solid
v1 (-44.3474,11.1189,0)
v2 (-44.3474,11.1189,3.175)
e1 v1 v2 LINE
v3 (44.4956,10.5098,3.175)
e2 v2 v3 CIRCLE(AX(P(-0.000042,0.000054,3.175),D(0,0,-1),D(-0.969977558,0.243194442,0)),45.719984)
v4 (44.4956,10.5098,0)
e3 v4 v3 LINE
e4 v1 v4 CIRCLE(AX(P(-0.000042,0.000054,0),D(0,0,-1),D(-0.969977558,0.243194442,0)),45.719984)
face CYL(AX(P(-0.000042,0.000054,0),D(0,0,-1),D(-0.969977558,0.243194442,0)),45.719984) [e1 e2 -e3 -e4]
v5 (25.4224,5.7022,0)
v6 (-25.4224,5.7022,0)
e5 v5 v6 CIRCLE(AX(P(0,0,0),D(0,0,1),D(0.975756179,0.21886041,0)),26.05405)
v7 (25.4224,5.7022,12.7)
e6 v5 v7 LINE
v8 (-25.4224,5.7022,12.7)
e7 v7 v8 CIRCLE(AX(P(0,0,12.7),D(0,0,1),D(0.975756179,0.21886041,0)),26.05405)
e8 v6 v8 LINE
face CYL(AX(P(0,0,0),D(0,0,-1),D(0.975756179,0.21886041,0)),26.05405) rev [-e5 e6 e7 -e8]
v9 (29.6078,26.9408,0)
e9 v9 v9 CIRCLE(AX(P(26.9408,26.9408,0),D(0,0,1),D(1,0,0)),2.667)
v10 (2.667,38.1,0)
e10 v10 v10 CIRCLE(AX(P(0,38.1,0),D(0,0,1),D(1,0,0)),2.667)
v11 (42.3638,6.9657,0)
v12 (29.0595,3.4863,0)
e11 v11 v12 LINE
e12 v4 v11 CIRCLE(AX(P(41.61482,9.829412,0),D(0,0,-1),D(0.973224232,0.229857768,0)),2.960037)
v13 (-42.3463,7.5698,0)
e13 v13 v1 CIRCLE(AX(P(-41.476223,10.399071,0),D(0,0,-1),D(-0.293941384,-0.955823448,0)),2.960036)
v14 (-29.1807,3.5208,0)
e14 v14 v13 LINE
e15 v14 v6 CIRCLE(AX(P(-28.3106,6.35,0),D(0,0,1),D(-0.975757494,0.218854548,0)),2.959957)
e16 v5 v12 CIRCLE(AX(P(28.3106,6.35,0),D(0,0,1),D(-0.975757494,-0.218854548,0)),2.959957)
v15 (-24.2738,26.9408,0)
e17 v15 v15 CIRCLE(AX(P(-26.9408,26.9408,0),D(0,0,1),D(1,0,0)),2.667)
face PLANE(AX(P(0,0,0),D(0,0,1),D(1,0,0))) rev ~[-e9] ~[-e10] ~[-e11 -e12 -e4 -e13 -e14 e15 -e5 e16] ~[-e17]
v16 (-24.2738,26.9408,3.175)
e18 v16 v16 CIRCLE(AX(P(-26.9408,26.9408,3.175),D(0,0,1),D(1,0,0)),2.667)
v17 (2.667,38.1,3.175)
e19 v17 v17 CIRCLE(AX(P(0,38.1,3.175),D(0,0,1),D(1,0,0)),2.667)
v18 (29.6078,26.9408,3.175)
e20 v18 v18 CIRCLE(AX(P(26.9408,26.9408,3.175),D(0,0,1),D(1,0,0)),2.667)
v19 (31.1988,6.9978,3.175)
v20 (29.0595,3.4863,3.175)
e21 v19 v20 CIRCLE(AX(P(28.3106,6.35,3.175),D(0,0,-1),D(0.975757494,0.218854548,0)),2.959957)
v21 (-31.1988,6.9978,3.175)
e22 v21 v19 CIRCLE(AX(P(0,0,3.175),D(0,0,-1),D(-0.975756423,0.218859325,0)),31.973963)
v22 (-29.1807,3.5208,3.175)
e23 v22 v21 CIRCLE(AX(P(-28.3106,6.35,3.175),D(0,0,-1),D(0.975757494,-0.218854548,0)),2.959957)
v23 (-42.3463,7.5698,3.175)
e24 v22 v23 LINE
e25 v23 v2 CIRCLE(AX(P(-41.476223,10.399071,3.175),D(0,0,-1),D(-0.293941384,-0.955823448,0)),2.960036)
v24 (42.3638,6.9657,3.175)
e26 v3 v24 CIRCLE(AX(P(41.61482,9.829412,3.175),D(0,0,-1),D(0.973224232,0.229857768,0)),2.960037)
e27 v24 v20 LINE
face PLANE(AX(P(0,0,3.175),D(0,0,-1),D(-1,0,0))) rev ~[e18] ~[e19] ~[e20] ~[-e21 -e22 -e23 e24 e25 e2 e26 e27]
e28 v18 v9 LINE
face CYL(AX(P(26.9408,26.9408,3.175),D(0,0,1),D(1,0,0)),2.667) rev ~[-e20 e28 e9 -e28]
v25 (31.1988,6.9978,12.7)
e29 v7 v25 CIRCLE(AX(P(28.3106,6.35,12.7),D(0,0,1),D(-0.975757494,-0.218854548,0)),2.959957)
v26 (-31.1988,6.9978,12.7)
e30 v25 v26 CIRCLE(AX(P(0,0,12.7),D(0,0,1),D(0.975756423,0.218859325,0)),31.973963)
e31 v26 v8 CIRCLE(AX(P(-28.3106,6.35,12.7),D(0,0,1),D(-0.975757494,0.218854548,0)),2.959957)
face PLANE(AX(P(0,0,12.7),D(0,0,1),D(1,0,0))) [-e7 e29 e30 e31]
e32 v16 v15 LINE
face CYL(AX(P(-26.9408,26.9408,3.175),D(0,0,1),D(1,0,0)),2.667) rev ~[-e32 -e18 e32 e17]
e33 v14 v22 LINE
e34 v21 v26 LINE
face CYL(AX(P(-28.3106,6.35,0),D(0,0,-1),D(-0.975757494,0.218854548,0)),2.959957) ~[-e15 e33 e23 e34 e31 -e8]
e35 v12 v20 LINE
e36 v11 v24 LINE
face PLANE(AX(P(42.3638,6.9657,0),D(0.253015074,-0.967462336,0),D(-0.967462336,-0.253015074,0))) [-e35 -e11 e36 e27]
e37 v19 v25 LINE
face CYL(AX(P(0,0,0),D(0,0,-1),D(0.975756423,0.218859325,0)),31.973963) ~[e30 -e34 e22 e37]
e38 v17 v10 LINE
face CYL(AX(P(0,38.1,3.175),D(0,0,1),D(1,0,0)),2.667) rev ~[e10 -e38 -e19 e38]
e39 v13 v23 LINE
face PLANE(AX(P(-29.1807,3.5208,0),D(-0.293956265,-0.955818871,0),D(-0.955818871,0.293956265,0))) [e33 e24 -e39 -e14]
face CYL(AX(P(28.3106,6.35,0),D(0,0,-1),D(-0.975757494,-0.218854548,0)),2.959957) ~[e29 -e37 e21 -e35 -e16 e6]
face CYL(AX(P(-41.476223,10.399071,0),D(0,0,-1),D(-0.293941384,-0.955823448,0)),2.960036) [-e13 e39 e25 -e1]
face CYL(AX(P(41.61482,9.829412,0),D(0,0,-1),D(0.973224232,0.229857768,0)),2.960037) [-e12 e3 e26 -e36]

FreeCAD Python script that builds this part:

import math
import FreeCAD as App
import Part
import Sketcher
from FreeCAD import Vector
Q = App.Units.Quantity

doc = App.newDocument("Part")
params = doc.addObject("Spreadsheet::Sheet", "Params")
for row, (alias, value) in enumerate([
    ("pad1_length", "0.5 in"),
    ("sketch2_radius", "1.8 in"),
    ("pad2_length", "0.125 in"),
    ("sketch3_diameter", "0.21 in"),
], start=1):
    params.set(f"A{row}", alias)
    params.set(f"B{row}", "=" + value)
    params.setAlias(f"B{row}", alias)

body = doc.addObject("PartDesign::Body", "Body")

sketch1 = body.newObject("Sketcher::SketchObject", "Sketch")
sketch1.AttachmentSupport = (doc.getObject("XY_Plane"), [""])
sketch1.MapMode = "FlatFace"
sketch1.addGeometry([
    Part.ArcOfCircle(Part.Circle(Vector(28.3, 6.3, 0), Vector(0, 0, 1), 3), math.radians(-167), math.radians(13)),
    Part.ArcOfCircle(Part.Circle(Vector(0, 0, 0), Vector(0, 0, 1), 32), math.radians(13), math.radians(167)),
    Part.ArcOfCircle(Part.Circle(Vector(-28.3, 6.3, 0), Vector(0, 0, 1), 3), math.radians(167), math.radians(347)),
    Part.ArcOfCircle(Part.Circle(Vector(0, 0, 0), Vector(0, 0, 1), 26.1), math.radians(13), math.radians(167)),
], False)
sketch1.addConstraint([
    Sketcher.Constraint("Tangent", 0, 2, 1, 1),
    Sketcher.Constraint("Tangent", 1, 2, 2, 1),
    Sketcher.Constraint("Tangent", 2, 2, 3, 2),
    Sketcher.Constraint("Tangent", 3, 1, 0, 1),
    Sketcher.Constraint("Coincident", 1, 3, -1, 1),
    Sketcher.Constraint("Coincident", 3, 3, -1, 1),
    Sketcher.Constraint("Horizontal", 0, 3, 2, 3),
    Sketcher.Constraint("DistanceY", -1, 1, 0, 3, Q("0.25 in")),
    Sketcher.Constraint("Radius", 0, Q("2.96 mm")),
    Sketcher.Constraint("Radius", 1, Q("31.974 mm")),
])
pad1 = body.newObject("PartDesign::Pad", "Pad")
pad1.Profile = sketch1
pad1.setExpression("Length", "Params.pad1_length")

sketch2 = body.newObject("Sketcher::SketchObject", "Sketch001")
sketch2.AttachmentSupport = (doc.getObject("XY_Plane"), [""])
sketch2.MapMode = "FlatFace"
sketch2.addGeometry([
    Part.ArcOfCircle(Part.Circle(Vector(0, 0, 0), Vector(0, 0, 1), 31.973963), math.radians(12.642044), math.radians(167.357956)),
    Part.ArcOfCircle(Part.Circle(Vector(-28.3106, 6.35, 0), Vector(0, 0, 1), 2.959957), math.radians(167.358236), math.radians(252.905098)),
    Part.LineSegment(Vector(-29.1807, 3.5208, 0), Vector(-42.3463, 7.5698, 0)),
    Part.ArcOfCircle(Part.Circle(Vector(-41.4762, 10.3991, 0), Vector(0, 0, 1), 2.96007), math.radians(165.9262), math.radians(252.905667)),
    Part.ArcOfCircle(Part.Circle(Vector(0, 0, 0), Vector(0, 0, 1), 45.720037), math.radians(13.289616), math.radians(165.924791)),
    Part.ArcOfCircle(Part.Circle(Vector(41.6149, 9.8294, 0), Vector(0, 0, 1), 2.959962), math.radians(-75.344517), math.radians(13.289288)),
    Part.LineSegment(Vector(42.3638, 6.9657, 0), Vector(29.0595, 3.4863, 0)),
    Part.ArcOfCircle(Part.Circle(Vector(28.3106, 6.35, 0), Vector(0, 0, 1), 2.959957), math.radians(-75.344517), math.radians(12.641764)),
], False)
sketch2.addConstraint([
    Sketcher.Constraint("Coincident", 0, 2, 1, 1),
    Sketcher.Constraint("Coincident", 1, 2, 2, 1),
    Sketcher.Constraint("Coincident", 2, 2, 3, 2),
    Sketcher.Constraint("Coincident", 3, 1, 4, 2),
    Sketcher.Constraint("Coincident", 4, 1, 5, 2),
    Sketcher.Constraint("Coincident", 5, 1, 6, 1),
    Sketcher.Constraint("Coincident", 6, 2, 7, 1),
    Sketcher.Constraint("Coincident", 7, 2, 0, 1),
    Sketcher.Constraint("Coincident", 0, 3, -1, 1),
    Sketcher.Constraint("Coincident", 4, 3, -1, 1),
    Sketcher.Constraint("Radius", 4, Q("1.8 in")),
    Sketcher.Constraint("DistanceY", -1, 1, 1, 3, Q("0.25 in")),
    Sketcher.Constraint("DistanceY", -1, 1, 7, 3, Q("0.25 in")),
    Sketcher.Constraint("Radius", 0, Q("31.974 mm")),
    Sketcher.Constraint("Radius", 1, Q("2.96 mm")),
    Sketcher.Constraint("Radius", 3, Q("2.96 mm")),
    Sketcher.Constraint("Radius", 5, Q("2.96 mm")),
    Sketcher.Constraint("Radius", 7, Q("2.96 mm")),
    Sketcher.Constraint("Distance", 2, Q("0.5423 in")),
    Sketcher.Constraint("Distance", 6, Q("0.5414 in")),
    Sketcher.Constraint("DistanceX", 0, 2, -1, 1, Q("1.2283 in")),
    Sketcher.Constraint("DistanceX", -1, 1, 4, 1, Q("1.7518 in")),
    Sketcher.Constraint("DistanceX", -1, 1, 7, 2, Q("1.2283 in")),
    Sketcher.Constraint("DistanceX", 3, 3, 5, 3, Q("3.2713 in")),
    Sketcher.Constraint("DistanceX", 7, 3, 5, 3, Q("0.5238 in")),
    Sketcher.Constraint("DistanceY", 1, 2, 0, 2, Q("0.1369 in")),
    Sketcher.Constraint("DistanceX", 6, 2, 5, 3, Q("0.4943 in")),
    Sketcher.Constraint("DistanceX", 3, 1, -1, 1, Q("44.3474 mm")),
])
sketch2.setExpression("Constraints[10]", "Params.sketch2_radius")
pad2 = body.newObject("PartDesign::Pad", "Pad001")
pad2.Profile = sketch2
pad2.setExpression("Length", "Params.pad2_length")

sketch3 = body.newObject("Sketcher::SketchObject", "Sketch002")
sketch3.AttachmentSupport = (doc.getObject("XY_Plane"), [""])
sketch3.MapMode = "FlatFace"
sketch3.AttachmentOffset = App.Placement(Vector(0, 0, 0.125 * 25.4), App.Rotation())
sketch3.addGeometry([
    Part.Circle(Vector(-26.9, 26.9, 0), Vector(0, 0, 1), 2.7),
    Part.Circle(Vector(0, 38.1, 0), Vector(0, 0, 1), 2.7),
    Part.Circle(Vector(26.9, 26.9, 0), Vector(0, 0, 1), 2.7),
], False)
sketch3.addConstraint([
    Sketcher.Constraint("Equal", 0, 1),
    Sketcher.Constraint("Equal", 1, 2),
    Sketcher.Constraint("Symmetric", 0, 3, 2, 3, -2),
    Sketcher.Constraint("PointOnObject", 1, 3, -2),
    Sketcher.Constraint("Diameter", 0, Q("0.21 in")),
    Sketcher.Constraint("DistanceY", -1, 1, 1, 3, Q("1.5 in")),
    Sketcher.Constraint("DistanceX", 0, 3, -1, 1, Q("26.9408 mm")),
    Sketcher.Constraint("DistanceY", -1, 1, 0, 3, Q("26.9408 mm")),
])
sketch3.setExpression("Constraints[4]", "Params.sketch3_diameter")
pocket1 = body.newObject("PartDesign::Pocket", "Pocket")
pocket1.Profile = sketch3
pocket1.Type = "ThroughAll"

doc.recompute()
